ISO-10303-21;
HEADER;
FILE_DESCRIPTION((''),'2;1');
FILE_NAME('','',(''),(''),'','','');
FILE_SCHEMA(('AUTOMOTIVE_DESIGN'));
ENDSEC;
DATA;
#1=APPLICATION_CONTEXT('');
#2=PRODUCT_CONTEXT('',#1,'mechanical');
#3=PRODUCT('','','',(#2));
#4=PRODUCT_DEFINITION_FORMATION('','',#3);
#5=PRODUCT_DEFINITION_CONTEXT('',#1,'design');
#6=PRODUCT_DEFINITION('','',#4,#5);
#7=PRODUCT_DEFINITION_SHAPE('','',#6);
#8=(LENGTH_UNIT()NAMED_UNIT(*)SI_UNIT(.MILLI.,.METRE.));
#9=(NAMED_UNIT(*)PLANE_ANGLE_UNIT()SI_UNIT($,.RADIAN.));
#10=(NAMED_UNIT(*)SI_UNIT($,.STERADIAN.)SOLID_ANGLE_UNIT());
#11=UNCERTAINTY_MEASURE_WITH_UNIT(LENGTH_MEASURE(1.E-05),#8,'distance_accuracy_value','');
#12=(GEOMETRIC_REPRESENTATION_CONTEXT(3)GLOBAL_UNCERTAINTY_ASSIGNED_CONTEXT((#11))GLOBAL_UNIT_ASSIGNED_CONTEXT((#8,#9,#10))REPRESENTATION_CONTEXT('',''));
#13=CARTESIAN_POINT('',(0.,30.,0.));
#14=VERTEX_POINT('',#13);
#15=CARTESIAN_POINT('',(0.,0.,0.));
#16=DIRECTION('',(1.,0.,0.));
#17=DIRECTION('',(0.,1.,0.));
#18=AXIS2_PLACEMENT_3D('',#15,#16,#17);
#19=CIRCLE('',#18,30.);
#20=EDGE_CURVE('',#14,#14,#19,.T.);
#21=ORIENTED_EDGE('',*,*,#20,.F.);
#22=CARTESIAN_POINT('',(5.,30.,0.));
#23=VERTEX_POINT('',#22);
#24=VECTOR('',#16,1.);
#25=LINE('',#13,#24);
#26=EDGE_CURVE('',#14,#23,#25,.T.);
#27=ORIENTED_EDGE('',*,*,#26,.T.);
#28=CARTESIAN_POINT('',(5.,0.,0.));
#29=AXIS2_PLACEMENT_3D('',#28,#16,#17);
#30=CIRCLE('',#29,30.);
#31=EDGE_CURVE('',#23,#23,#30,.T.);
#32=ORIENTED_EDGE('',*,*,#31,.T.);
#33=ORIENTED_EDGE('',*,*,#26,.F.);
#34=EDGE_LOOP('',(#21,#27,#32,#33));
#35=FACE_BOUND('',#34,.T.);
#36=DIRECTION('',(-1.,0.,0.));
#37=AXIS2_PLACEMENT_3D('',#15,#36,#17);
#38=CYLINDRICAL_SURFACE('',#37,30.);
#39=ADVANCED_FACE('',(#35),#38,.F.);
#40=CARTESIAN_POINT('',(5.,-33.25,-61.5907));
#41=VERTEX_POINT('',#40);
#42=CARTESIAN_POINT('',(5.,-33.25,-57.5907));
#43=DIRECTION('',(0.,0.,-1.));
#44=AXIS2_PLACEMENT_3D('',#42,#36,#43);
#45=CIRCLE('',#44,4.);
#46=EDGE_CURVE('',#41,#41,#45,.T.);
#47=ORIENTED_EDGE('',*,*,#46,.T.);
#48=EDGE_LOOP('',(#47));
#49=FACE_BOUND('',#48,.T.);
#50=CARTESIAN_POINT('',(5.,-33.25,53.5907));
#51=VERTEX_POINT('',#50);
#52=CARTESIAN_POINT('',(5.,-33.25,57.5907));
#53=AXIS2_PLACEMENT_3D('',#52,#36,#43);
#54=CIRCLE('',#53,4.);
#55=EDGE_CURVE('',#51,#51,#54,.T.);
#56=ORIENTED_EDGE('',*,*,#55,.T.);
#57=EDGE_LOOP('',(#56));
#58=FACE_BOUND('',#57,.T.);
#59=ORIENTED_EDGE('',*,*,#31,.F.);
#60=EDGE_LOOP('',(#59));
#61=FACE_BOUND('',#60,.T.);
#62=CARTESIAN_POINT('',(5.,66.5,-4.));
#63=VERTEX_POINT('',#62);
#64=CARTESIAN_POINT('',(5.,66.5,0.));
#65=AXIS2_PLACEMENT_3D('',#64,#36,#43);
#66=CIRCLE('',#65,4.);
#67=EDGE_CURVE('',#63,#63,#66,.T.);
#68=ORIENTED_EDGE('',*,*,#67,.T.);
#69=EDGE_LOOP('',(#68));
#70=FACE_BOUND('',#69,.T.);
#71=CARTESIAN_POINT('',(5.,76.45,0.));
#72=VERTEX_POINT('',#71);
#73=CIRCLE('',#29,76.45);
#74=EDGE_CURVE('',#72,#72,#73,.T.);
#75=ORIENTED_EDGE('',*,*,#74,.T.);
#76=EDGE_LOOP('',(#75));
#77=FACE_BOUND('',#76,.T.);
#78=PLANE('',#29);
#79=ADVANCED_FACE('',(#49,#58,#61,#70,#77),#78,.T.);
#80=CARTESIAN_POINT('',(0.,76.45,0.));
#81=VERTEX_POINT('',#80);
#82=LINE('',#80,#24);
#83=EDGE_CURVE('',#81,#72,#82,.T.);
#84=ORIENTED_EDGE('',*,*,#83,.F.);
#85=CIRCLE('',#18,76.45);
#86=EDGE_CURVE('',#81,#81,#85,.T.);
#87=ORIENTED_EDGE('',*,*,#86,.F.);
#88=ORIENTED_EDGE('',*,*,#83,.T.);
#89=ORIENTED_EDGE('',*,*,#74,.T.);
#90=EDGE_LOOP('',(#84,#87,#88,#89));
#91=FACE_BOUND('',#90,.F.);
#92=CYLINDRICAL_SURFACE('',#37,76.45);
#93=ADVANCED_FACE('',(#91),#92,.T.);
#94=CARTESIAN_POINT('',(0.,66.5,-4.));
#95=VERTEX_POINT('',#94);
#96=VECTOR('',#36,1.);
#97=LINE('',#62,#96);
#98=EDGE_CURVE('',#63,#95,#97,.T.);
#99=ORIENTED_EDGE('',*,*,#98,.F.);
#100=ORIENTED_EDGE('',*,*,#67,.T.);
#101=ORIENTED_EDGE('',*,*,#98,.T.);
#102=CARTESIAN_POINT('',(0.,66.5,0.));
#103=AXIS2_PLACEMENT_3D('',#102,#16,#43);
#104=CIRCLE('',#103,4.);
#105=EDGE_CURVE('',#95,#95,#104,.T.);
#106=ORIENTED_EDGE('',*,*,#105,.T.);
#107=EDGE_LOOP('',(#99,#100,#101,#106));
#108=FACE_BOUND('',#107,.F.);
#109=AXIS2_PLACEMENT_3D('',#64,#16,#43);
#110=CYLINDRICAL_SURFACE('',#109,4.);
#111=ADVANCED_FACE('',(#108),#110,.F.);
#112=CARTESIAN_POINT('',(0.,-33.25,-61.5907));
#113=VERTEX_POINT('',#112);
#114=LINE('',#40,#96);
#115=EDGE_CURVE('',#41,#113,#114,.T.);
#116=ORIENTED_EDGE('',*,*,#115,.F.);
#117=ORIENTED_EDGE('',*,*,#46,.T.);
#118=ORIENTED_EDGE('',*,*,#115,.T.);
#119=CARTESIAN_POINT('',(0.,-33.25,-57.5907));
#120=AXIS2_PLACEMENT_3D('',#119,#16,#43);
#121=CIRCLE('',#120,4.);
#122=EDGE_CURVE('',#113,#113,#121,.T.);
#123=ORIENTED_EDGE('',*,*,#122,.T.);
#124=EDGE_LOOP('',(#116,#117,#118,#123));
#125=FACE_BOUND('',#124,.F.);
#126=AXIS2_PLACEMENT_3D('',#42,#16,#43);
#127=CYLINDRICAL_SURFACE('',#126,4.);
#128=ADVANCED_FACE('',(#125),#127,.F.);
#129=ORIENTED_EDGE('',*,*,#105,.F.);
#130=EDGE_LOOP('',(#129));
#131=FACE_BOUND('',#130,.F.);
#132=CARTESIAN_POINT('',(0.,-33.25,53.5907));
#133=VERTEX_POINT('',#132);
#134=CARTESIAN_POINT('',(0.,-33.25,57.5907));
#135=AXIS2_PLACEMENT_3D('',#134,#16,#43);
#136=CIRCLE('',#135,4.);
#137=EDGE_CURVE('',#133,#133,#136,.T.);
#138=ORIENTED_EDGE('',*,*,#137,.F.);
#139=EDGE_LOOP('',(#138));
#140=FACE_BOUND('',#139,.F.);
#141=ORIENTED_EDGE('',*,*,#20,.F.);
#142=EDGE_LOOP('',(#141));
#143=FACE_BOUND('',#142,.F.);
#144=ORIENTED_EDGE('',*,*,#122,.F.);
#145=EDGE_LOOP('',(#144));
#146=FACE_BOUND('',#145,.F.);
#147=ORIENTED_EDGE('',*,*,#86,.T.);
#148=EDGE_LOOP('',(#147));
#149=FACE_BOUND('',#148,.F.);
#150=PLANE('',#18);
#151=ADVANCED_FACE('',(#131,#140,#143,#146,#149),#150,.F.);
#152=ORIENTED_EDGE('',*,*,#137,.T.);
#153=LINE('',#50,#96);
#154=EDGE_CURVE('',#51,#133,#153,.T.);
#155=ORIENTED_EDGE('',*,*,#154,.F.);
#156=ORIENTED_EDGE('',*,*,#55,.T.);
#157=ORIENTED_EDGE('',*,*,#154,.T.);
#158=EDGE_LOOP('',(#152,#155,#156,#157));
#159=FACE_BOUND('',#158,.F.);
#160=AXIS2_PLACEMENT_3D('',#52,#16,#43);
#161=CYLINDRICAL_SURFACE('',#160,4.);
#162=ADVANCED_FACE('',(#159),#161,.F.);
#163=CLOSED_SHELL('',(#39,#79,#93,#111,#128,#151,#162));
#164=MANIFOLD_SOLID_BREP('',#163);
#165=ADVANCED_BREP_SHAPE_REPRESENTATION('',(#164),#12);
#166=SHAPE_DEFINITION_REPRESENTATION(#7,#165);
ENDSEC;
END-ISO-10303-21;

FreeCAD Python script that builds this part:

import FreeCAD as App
import Part
import Sketcher
Q = App.Units.Quantity

doc = App.newDocument("Part")
params = doc.addObject("Spreadsheet::Sheet", "Params")
for row, (alias, value) in enumerate([
    ("sketch1_diameter", "60 mm"),
    ("sketch1_diameter2", "152.9 mm"),
    ("pad1_length", "5 mm"),
    ("sketch2_diameter", "8 mm"),
], start=1):
    params.set(f"A{row}", alias)
    params.set(f"B{row}", "=" + value)
    params.setAlias(f"B{row}", alias)

body = doc.addObject("PartDesign::Body", "Body")

sketch1 = body.newObject("Sketcher::SketchObject", "Sketch")
sketch1.AttachmentSupport = (doc.getObject("YZ_Plane"), [""])
sketch1.MapMode = "FlatFace"
sketch1.addGeometry([
    Part.Circle(App.Vector(0, 0, 0), App.Vector(0, 0, 1), 76),
    Part.Circle(App.Vector(0, 0, 0), App.Vector(0, 0, 1), 30),
], False)
sketch1.addConstraint([
    Sketcher.Constraint("Coincident", 0, 3, -1, 1),
    Sketcher.Constraint("Coincident", 1, 3, -1, 1),
    Sketcher.Constraint("Diameter", 1, Q("60 mm")),
    Sketcher.Constraint("Diameter", 0, Q("152.9 mm")),
])
sketch1.setExpression("Constraints[2]", "Params.sketch1_diameter")
sketch1.setExpression("Constraints[3]", "Params.sketch1_diameter2")
pad1 = body.newObject("PartDesign::Pad", "Pad")
pad1.Profile = sketch1
pad1.setExpression("Length", "Params.pad1_length")

sketch2 = body.newObject("Sketcher::SketchObject", "Sketch001")
sketch2.AttachmentSupport = (doc.getObject("YZ_Plane"), [""])
sketch2.MapMode = "FlatFace"
sketch2.AttachmentOffset = App.Placement(App.Vector(0, 0, 5), App.Rotation())
sketch2.addGeometry([
    Part.Circle(App.Vector(66.5, 0, 0), App.Vector(0, 0, 1), 4),
    Part.Circle(App.Vector(-33.2, -57.6, 0), App.Vector(0, 0, 1), 4),
    Part.Circle(App.Vector(-33.2, 57.6, 0), App.Vector(0, 0, 1), 4),
], False)
sketch2.addConstraint([
    Sketcher.Constraint("Equal", 0, 1),
    Sketcher.Constraint("Equal", 1, 2),
    Sketcher.Constraint("Symmetric", 1, 3, 2, 3, -1),
    Sketcher.Constraint("PointOnObject", 0, 3, -1),
    Sketcher.Constraint("Diameter", 0, Q("8 mm")),
    Sketcher.Constraint("DistanceX", -1, 1, 0, 3, Q("66.5 mm")),
    Sketcher.Constraint("DistanceX", 1, 3, -1, 1, Q("33.25 mm")),
    Sketcher.Constraint("DistanceY", 1, 3, -1, 1, Q("57.5907 mm")),
])
sketch2.setExpression("Constraints[4]", "Params.sketch2_diameter")
pocket1 = body.newObject("PartDesign::Pocket", "Pocket")
pocket1.Profile = sketch2
pocket1.Type = "ThroughAll"

doc.recompute()
